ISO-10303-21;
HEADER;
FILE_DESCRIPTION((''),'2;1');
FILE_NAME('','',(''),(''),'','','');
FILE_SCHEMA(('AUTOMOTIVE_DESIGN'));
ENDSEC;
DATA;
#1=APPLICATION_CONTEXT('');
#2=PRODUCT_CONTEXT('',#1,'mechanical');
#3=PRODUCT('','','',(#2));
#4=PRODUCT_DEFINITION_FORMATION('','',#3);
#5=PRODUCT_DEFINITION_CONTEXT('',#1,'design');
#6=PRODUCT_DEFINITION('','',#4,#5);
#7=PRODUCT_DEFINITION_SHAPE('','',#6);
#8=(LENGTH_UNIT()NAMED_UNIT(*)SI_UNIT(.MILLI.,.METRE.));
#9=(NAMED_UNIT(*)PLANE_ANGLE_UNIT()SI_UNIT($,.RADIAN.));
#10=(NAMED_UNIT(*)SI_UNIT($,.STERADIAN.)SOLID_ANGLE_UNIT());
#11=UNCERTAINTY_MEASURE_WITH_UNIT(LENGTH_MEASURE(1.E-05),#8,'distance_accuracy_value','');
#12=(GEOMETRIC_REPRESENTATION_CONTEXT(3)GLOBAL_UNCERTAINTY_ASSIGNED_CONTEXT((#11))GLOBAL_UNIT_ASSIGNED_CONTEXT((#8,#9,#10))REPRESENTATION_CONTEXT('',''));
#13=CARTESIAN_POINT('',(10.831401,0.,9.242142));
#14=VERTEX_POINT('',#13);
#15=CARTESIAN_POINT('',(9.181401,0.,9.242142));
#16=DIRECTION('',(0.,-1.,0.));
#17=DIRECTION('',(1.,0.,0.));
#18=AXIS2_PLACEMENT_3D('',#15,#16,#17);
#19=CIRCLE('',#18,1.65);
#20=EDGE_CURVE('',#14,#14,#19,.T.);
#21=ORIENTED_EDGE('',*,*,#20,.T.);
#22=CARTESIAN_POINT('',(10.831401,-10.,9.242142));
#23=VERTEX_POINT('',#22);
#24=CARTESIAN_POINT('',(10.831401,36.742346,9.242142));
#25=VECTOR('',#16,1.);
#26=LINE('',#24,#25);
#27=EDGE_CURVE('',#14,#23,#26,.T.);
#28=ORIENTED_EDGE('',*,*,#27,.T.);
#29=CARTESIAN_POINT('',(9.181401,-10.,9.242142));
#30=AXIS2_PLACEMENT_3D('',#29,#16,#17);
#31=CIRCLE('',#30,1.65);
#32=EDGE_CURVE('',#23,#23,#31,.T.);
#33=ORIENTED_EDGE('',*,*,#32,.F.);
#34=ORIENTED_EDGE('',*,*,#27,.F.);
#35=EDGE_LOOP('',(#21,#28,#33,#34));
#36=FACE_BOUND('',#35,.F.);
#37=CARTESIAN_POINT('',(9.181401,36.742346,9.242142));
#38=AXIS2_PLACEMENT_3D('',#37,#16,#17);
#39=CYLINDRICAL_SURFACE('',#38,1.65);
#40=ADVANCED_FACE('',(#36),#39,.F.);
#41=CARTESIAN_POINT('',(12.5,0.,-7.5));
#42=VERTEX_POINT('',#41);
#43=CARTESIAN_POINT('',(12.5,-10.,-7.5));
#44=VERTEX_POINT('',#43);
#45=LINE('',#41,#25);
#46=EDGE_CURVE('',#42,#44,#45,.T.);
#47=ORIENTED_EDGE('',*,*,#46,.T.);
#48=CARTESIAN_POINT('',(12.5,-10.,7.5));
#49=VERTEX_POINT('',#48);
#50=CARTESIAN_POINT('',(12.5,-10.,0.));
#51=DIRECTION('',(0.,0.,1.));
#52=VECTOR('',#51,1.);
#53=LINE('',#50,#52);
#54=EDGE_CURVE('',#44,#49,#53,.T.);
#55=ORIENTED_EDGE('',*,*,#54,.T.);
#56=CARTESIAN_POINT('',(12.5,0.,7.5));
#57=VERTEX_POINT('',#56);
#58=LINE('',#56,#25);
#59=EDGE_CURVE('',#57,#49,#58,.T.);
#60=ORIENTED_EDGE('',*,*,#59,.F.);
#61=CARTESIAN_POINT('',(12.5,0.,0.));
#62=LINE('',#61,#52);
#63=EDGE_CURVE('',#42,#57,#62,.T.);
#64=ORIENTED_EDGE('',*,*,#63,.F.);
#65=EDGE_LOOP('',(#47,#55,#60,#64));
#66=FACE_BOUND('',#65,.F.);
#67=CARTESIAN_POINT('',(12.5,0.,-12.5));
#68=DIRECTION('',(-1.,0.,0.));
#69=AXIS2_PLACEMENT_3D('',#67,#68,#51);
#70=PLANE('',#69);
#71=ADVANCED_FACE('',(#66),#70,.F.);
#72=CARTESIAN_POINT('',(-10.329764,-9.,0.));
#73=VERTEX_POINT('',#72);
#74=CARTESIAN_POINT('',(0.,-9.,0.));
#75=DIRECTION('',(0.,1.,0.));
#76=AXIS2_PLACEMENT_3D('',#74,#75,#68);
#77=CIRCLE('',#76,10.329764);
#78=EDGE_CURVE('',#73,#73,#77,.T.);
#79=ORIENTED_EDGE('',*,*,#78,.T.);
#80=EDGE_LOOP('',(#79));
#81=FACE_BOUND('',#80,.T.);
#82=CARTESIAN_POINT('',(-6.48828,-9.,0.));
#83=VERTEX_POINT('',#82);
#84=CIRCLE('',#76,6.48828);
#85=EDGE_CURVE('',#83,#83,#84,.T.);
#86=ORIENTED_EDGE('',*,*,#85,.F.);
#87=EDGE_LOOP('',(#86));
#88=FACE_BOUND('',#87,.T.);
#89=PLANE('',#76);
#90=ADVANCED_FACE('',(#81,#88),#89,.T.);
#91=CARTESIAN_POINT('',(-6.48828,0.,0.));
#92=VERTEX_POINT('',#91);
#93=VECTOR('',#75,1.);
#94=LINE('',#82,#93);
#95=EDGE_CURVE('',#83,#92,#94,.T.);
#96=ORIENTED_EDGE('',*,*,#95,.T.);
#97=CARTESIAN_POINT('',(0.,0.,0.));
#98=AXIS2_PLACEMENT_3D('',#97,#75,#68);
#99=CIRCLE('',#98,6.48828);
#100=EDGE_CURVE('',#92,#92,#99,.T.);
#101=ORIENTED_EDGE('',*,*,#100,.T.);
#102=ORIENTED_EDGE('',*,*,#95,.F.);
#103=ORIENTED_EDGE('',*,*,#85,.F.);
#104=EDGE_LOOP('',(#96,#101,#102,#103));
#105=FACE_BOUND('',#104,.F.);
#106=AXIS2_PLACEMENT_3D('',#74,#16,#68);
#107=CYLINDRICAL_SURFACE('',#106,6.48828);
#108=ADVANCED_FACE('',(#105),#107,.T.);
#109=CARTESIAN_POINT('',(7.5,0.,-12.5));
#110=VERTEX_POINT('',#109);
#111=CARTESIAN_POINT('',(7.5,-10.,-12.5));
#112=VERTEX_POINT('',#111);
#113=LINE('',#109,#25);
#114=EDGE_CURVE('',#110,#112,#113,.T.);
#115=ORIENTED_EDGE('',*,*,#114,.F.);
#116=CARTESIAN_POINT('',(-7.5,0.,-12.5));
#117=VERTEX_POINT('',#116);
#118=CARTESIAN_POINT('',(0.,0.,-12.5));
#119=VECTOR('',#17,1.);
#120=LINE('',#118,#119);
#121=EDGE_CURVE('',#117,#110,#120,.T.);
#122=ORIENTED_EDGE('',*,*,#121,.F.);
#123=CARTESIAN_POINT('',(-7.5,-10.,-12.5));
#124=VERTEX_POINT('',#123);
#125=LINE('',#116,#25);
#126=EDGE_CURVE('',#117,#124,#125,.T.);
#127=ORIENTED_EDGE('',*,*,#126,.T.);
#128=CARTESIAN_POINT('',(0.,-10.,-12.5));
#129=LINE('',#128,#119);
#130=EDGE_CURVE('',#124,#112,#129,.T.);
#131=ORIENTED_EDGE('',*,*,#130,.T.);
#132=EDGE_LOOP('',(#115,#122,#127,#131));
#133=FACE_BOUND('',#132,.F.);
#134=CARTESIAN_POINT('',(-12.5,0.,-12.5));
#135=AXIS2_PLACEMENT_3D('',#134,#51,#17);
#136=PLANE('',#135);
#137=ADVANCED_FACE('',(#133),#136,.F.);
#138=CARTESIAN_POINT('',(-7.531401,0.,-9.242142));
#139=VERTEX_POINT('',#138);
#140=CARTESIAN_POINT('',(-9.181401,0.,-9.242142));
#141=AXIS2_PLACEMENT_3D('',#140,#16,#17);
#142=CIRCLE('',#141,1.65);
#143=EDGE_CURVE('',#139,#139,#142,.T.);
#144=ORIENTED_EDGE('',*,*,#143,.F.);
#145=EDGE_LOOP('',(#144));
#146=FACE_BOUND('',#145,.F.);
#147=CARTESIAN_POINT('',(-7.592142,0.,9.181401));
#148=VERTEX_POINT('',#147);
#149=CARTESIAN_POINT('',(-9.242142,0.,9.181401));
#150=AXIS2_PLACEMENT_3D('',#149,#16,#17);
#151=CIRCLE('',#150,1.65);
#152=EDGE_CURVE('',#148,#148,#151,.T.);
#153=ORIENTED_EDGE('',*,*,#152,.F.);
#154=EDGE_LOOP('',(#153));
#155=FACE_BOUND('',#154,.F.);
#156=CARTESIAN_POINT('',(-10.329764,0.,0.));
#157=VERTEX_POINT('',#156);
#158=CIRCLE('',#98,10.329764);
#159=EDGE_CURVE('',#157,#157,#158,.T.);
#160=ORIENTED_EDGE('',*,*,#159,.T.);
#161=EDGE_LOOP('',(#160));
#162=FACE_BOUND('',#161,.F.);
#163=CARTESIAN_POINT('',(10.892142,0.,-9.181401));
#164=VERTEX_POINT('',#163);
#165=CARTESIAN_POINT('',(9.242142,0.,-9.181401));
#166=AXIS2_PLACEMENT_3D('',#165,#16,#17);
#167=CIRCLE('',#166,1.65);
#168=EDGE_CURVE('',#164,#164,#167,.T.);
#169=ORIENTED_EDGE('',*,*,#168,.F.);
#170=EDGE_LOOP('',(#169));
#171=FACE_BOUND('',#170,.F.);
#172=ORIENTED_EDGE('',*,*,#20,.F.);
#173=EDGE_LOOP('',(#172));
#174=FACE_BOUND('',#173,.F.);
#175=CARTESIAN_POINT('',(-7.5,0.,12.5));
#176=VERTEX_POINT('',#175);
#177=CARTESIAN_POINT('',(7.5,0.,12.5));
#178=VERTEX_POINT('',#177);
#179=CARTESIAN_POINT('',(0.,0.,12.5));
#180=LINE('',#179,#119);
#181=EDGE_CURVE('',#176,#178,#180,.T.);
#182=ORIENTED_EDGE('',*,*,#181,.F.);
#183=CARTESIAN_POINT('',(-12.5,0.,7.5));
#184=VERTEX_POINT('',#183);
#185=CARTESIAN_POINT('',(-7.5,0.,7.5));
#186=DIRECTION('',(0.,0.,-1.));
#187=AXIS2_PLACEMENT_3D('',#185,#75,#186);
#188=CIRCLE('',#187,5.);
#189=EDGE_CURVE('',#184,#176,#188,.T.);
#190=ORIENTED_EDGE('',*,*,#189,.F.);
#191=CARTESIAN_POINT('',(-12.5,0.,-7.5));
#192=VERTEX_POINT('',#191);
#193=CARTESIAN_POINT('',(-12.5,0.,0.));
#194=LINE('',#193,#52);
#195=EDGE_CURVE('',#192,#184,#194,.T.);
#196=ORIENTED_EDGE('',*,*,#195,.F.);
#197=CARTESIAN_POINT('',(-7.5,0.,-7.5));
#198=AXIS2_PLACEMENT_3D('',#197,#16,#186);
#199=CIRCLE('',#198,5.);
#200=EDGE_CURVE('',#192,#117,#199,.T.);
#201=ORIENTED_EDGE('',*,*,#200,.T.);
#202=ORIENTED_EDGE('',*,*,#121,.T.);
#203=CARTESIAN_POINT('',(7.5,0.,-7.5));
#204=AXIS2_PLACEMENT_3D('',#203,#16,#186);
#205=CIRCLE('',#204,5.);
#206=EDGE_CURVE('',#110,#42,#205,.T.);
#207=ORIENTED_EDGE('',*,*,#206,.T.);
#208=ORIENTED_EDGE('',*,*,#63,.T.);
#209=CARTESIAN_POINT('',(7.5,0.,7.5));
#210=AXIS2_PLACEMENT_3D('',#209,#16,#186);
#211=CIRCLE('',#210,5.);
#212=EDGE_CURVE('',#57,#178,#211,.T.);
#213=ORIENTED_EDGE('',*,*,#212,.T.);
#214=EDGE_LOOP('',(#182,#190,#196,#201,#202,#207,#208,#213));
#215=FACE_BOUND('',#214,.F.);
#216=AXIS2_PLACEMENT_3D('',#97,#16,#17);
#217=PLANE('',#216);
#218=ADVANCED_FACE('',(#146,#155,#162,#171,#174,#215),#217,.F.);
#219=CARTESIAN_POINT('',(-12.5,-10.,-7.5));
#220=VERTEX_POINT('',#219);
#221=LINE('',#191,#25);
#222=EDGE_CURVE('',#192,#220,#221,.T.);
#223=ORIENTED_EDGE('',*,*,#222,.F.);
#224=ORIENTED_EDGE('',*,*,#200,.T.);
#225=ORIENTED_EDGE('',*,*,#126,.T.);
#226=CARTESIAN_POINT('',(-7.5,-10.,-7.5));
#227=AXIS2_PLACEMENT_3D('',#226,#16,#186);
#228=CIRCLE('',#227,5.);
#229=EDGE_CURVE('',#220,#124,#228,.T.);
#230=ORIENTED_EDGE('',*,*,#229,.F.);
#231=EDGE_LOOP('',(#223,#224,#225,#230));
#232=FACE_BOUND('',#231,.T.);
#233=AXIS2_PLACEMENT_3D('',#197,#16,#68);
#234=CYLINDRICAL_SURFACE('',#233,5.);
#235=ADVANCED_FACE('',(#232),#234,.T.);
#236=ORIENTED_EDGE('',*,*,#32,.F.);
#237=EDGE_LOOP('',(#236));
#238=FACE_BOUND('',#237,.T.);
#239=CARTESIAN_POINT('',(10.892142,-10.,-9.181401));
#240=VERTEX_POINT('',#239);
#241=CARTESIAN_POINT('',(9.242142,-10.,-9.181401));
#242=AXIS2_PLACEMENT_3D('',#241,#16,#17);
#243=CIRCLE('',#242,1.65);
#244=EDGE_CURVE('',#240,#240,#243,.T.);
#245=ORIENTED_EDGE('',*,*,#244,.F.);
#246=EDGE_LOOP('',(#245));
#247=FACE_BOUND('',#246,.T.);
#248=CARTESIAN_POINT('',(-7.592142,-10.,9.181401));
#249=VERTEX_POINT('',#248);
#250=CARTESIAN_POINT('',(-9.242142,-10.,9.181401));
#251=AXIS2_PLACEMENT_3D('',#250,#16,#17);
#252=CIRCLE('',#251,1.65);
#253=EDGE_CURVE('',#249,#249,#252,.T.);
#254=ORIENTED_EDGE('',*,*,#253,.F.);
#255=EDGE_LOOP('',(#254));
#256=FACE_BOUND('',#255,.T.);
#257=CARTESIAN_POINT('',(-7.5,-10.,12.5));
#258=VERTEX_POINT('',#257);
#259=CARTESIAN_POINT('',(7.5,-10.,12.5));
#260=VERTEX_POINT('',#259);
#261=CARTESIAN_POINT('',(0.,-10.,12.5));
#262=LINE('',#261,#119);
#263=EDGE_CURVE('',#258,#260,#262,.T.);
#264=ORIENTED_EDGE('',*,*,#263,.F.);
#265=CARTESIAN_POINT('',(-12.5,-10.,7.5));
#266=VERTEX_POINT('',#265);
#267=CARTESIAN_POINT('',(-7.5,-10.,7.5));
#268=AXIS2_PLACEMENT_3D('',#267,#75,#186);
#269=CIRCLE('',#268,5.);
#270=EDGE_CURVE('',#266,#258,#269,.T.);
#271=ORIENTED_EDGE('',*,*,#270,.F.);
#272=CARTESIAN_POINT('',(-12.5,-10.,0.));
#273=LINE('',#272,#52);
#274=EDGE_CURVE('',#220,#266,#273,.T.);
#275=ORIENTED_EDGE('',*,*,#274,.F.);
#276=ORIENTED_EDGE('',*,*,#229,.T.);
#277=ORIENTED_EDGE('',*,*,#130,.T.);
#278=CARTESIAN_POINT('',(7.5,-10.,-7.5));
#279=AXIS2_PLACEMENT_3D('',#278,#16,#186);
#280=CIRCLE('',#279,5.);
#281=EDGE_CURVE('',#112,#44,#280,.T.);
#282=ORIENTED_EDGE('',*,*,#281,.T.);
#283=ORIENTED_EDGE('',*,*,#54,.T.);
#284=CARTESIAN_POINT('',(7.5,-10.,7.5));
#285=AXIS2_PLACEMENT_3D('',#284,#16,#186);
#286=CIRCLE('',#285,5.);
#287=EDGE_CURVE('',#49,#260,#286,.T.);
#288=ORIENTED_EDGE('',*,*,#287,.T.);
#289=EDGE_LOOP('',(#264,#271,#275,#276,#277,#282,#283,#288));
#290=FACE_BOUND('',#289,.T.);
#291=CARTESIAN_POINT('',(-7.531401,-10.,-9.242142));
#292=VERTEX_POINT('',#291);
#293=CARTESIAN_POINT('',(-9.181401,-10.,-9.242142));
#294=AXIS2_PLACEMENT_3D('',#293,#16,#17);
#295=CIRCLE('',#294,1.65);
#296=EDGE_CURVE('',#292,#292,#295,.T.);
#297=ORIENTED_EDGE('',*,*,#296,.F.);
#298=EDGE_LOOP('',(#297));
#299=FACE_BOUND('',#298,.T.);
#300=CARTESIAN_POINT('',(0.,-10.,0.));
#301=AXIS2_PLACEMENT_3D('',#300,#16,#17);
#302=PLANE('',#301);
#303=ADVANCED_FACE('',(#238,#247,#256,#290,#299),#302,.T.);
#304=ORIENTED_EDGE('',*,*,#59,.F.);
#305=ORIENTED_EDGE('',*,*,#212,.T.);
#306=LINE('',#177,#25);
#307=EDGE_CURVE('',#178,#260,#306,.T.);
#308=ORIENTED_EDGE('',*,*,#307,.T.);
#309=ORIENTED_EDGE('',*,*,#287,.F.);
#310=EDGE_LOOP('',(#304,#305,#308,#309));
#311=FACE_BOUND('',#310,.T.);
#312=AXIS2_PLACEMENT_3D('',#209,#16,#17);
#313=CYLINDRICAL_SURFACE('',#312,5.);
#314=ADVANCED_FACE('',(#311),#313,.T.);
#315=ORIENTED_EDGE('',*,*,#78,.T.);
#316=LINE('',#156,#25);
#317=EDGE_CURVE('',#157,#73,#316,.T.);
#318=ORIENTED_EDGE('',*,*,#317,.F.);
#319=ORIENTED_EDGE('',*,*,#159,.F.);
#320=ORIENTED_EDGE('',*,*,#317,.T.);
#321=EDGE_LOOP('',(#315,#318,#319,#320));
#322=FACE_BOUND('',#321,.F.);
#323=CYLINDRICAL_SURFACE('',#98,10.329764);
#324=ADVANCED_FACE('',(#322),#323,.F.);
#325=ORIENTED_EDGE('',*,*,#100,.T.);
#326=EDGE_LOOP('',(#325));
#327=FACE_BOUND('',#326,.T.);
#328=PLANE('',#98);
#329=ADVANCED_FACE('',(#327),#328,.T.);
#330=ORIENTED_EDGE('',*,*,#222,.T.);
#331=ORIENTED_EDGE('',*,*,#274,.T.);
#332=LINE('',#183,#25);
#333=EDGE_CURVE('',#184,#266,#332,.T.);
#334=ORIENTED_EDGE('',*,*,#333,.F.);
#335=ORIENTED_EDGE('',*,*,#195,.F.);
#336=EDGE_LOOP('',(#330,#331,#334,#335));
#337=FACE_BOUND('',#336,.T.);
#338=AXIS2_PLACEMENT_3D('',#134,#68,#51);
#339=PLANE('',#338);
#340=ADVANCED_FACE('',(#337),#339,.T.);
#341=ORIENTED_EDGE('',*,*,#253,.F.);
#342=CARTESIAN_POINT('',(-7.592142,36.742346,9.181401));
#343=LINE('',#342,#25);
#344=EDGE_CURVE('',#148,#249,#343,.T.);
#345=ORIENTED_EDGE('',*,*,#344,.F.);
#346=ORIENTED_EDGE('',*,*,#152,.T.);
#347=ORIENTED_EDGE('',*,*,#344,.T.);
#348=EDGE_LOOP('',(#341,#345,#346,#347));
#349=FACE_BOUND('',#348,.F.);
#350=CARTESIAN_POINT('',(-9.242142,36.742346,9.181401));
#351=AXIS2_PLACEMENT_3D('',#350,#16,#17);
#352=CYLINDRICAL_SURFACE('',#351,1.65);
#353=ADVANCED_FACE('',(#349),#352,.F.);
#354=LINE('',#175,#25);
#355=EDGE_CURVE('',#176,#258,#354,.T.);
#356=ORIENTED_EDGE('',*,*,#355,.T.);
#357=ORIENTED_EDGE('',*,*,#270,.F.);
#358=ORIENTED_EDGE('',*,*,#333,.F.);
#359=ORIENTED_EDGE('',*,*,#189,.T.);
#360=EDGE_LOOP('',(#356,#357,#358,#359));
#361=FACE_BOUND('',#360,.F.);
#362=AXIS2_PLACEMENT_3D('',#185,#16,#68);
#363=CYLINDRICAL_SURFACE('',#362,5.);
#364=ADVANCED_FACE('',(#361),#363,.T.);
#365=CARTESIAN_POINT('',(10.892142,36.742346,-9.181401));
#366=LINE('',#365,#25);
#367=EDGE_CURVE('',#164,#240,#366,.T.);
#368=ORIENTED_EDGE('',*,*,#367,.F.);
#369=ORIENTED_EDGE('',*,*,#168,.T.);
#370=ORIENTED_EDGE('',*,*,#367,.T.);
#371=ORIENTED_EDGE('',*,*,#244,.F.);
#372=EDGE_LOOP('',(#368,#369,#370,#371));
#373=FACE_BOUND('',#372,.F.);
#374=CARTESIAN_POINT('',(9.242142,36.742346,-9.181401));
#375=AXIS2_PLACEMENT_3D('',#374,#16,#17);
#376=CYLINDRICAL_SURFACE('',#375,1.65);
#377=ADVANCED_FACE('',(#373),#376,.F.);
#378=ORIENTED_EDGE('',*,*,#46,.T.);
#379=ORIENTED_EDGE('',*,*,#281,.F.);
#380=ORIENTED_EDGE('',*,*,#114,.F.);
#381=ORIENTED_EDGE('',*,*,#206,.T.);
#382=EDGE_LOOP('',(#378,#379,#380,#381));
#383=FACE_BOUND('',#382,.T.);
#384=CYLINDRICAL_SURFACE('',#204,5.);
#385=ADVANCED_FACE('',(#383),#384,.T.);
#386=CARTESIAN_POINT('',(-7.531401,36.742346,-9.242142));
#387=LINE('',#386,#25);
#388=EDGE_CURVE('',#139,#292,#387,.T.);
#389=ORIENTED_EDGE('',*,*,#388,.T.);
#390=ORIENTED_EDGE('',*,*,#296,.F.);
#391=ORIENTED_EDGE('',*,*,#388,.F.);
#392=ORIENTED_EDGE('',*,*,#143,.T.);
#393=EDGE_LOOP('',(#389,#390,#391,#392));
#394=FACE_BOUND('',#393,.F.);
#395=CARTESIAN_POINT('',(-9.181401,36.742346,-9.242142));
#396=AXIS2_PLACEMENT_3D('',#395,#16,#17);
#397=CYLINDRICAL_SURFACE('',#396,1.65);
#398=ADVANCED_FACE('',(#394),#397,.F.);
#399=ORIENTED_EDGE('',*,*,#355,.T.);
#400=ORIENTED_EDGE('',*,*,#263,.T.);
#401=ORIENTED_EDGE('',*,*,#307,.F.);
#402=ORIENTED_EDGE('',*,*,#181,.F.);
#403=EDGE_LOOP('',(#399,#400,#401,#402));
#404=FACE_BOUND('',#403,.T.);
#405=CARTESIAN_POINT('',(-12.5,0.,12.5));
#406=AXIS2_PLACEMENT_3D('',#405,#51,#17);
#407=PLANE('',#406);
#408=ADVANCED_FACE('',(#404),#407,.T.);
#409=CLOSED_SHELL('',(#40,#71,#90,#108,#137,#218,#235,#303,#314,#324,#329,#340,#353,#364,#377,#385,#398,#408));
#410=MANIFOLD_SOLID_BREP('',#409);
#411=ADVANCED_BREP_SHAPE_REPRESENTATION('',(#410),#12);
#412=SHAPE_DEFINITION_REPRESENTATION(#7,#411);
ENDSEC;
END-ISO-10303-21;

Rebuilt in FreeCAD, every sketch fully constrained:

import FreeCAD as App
import Part
import Sketcher
from FreeCAD import Vector
Q = App.Units.Quantity


def edges_at(feature, points):
    """Names of the edges that pass closest to the given points."""
    edges = feature.Shape.Edges
    near = lambda p: min(range(len(edges)), key=lambda i: edges[i].distToShape(Part.Vertex(*p))[0])
    return sorted({f"Edge{near(p) + 1}" for p in points})


def add_polygon(sketch, points):
    """Adds a closed chain of lines whose ends are joined by coincident constraints."""
    first, n = sketch.GeometryCount, len(points)
    for a, b in zip(points, points[1:] + points[:1]):
        sketch.addGeometry(Part.LineSegment(App.Vector(*a, 0), App.Vector(*b, 0)), False)
    for i in range(n):
        sketch.addConstraint(Sketcher.Constraint("Coincident", first + i, 2, first + (i + 1) % n, 1))

doc = App.newDocument("Part")
body = doc.addObject("PartDesign::Body", "Body")

# Sketch on XZ plane
sketch1 = body.newObject("Sketcher::SketchObject", "Sketch")
sketch1.AttachmentSupport = (doc.getObject("XZ_Plane"), [""])
sketch1.MapMode = "FlatFace"
add_polygon(sketch1, [(-12, 12), (-12, -12), (12, -12), (12, 12)])  # lines 0-3
sketch1.addConstraint([
    Sketcher.Constraint("Vertical", 0),
    Sketcher.Constraint("Horizontal", 1),
    Sketcher.Constraint("Vertical", 2),
    Sketcher.Constraint("Horizontal", 3),
    Sketcher.Constraint("Symmetric", 0, 2, 2, 2, -1, 1),
    Sketcher.Constraint("Equal", 3, 0),
    Sketcher.Constraint("DistanceX", 1, 1, 1, 2, Q("25 mm")),
])
pad1 = body.newObject("PartDesign::Pad", "Pad")
pad1.Profile = sketch1
pad1.Length = 10
doc.recompute()

fillet = body.newObject("PartDesign::Fillet", "Fillet")
fillet.Base = (pad1, edges_at(pad1, [
    (12.5, -5, 12.5),
    (12.5, -5, -12.5),
    (-12.5, -5, 12.5),
    (-12.5, -5, -12.5),
]))
fillet.Radius = 5

# Sketch on XZ plane
sketch2 = body.newObject("Sketcher::SketchObject", "Sketch001")
sketch2.AttachmentSupport = (doc.getObject("XZ_Plane"), [""])
sketch2.MapMode = "FlatFace"
sketch2.addGeometry(Part.Circle(Vector(0, 0, 0), Vector(0, 0, 1), 10), False)
sketch2.addConstraint([
    Sketcher.Constraint("Coincident", 0, 3, -1, 1),
    Sketcher.Constraint("Diameter", 0, Q("20.659527 mm")),
])
pocket1 = body.newObject("PartDesign::Pocket", "Pocket")
pocket1.Profile = sketch2
pocket1.Length = 9
pocket1.Reversed = True

# Sketch on XZ plane
sketch3 = body.newObject("Sketcher::SketchObject", "Sketch002")
sketch3.AttachmentSupport = (doc.getObject("XZ_Plane"), [""])
sketch3.MapMode = "FlatFace"
sketch3.AttachmentOffset = App.Placement(Vector(0, 0, 9), App.Rotation())
sketch3.addGeometry(Part.Circle(Vector(0, 0, 0), Vector(0, 0, 1), 6), False)
sketch3.addConstraint([
    Sketcher.Constraint("Coincident", 0, 3, -1, 1),
    Sketcher.Constraint("Diameter", 0, Q("12.976561 mm")),
])
pad2 = body.newObject("PartDesign::Pad", "Pad001")
pad2.Profile = sketch3
pad2.Length = 9
pad2.Reversed = True

# Sketch on XZ plane
sketch4 = body.newObject("Sketcher::SketchObject", "Sketch003")
sketch4.AttachmentSupport = (doc.getObject("XZ_Plane"), [""])
sketch4.MapMode = "FlatFace"
sketch4.addGeometry([
    Part.Circle(Vector(-9.2, 9.2, 0), Vector(0, 0, 1), 1.6),
    Part.Circle(Vector(-9.2, -9.2, 0), Vector(0, 0, 1), 1.6),
    Part.Circle(Vector(9.2, -9.2, 0), Vector(0, 0, 1), 1.6),
    Part.Circle(Vector(9.2, 9.2, 0), Vector(0, 0, 1), 1.6),
], False)
sketch4.addConstraint([
    Sketcher.Constraint("Equal", 0, 1),
    Sketcher.Constraint("Equal", 1, 2),
    Sketcher.Constraint("Equal", 2, 3),
    Sketcher.Constraint("Symmetric", 0, 3, 2, 3, -1, 1),
    Sketcher.Constraint("Symmetric", 1, 3, 3, 3, -1, 1),
    Sketcher.Constraint("Diameter", 0, Q("3.3 mm")),
    Sketcher.Constraint("DistanceY", -1, 1, 0, 3, Q("9.181401 mm")),
    Sketcher.Constraint("DistanceX", 1, 3, -1, 1, Q("9.181401 mm")),
    Sketcher.Constraint("DistanceX", 0, 3, -1, 1, Q("9.242142 mm")),
    Sketcher.Constraint("DistanceY", 1, 3, -1, 1, Q("9.242142 mm")),
])
doc.recompute()
hole = body.newObject("PartDesign::Hole", "Hole")
hole.Profile = sketch4
hole.ThreadType = "None"
hole.Diameter = 3.3
hole.DepthType = "ThroughAll"
hole.Reversed = True

doc.recompute()
